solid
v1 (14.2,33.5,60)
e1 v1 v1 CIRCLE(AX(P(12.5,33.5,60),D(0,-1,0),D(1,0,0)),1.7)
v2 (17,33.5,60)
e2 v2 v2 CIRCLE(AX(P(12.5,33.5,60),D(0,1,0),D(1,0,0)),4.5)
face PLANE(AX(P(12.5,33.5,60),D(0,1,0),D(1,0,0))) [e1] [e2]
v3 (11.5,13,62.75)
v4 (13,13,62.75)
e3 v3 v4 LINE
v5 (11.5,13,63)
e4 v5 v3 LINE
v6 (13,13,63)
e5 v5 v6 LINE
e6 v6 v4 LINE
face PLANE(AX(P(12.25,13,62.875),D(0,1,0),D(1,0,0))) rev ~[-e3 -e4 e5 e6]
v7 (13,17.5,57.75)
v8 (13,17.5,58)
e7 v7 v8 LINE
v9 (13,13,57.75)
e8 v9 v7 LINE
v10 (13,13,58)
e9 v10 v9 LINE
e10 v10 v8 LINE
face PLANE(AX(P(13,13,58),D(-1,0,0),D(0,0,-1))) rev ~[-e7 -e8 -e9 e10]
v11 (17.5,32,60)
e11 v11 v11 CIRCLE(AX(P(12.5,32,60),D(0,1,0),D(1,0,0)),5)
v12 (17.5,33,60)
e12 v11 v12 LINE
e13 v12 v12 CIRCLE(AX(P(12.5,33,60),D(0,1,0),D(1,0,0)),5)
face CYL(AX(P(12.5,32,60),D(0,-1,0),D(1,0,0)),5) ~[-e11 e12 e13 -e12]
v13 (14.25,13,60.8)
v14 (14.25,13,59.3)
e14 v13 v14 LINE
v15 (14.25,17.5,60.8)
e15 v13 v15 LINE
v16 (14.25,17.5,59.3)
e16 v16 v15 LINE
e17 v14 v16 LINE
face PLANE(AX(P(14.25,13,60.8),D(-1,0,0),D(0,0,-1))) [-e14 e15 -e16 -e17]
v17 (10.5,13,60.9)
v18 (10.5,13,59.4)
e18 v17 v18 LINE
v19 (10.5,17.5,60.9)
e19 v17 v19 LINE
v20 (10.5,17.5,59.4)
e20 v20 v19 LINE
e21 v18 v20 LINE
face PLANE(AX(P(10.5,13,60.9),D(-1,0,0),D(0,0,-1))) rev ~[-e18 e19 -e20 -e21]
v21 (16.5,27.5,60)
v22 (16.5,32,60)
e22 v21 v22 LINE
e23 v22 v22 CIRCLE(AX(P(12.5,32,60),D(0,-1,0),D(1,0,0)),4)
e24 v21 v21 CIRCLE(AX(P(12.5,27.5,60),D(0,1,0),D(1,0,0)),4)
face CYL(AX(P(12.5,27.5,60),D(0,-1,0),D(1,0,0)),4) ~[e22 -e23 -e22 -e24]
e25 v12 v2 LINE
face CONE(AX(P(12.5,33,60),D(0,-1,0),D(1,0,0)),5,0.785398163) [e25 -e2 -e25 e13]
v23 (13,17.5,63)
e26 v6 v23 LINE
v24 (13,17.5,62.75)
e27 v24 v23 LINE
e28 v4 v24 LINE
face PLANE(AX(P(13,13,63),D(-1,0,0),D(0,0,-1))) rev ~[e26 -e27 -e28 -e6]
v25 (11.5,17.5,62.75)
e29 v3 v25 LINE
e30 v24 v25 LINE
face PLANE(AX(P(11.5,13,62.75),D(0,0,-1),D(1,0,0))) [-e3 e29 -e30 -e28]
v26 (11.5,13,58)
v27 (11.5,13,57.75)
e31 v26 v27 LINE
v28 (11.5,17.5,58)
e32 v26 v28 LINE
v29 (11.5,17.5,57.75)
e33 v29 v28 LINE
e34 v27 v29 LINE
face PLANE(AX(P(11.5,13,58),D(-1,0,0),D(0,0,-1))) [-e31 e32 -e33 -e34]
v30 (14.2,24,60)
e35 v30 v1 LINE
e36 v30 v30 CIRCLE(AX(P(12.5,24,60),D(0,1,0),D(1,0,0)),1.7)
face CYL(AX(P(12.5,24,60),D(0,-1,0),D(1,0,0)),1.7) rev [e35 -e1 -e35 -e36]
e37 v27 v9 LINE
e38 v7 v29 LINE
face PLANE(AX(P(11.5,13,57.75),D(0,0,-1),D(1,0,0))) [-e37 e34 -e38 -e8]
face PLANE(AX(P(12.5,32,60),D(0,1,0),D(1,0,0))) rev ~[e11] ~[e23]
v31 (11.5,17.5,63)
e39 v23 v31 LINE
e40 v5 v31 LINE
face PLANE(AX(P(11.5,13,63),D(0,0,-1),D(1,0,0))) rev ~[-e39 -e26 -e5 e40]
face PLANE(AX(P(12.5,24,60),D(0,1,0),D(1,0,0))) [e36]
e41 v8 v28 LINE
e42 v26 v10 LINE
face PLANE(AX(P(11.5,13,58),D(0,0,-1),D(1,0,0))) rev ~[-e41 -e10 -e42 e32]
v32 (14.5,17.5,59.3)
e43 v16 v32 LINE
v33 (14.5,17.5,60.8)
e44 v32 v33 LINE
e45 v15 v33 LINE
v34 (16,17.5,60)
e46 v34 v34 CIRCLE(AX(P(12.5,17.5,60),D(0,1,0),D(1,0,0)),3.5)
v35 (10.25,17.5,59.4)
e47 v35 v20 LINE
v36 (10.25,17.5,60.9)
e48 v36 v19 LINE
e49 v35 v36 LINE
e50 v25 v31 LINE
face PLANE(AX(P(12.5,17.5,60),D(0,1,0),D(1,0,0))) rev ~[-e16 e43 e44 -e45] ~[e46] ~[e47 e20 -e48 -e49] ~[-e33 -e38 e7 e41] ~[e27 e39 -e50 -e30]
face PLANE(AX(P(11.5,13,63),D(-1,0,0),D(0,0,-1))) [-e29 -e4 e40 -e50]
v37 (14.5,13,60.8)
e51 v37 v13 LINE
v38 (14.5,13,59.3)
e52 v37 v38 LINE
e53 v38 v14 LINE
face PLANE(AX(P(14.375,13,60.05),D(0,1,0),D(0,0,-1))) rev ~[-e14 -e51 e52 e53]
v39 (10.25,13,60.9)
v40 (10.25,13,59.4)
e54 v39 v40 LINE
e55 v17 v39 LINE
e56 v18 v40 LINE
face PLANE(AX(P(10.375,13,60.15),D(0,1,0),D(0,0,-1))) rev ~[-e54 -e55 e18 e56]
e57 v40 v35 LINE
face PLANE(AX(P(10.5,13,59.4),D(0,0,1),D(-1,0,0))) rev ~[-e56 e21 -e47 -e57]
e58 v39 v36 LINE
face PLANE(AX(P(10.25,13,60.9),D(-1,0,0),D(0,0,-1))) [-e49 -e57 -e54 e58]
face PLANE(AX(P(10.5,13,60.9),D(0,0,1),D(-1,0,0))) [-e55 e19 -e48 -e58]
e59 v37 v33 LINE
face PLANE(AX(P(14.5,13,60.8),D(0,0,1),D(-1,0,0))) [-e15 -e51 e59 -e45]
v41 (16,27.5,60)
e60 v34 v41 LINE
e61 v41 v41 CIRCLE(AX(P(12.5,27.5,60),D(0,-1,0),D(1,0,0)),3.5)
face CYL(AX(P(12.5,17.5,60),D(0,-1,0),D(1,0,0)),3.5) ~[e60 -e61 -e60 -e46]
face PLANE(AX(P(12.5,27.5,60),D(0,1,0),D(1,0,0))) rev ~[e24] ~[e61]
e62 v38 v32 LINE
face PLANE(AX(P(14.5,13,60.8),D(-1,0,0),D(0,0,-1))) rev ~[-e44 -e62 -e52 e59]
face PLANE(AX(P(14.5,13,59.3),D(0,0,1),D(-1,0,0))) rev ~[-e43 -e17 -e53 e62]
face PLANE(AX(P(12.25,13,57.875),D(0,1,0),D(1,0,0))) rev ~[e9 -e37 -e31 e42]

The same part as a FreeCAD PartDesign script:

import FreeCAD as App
import Part
import Sketcher
from FreeCAD import Vector
Q = App.Units.Quantity


def edges_at(feature, points):
    """Names of the edges that pass closest to the given points."""
    edges = feature.Shape.Edges
    near = lambda p: min(range(len(edges)), key=lambda i: edges[i].distToShape(Part.Vertex(*p))[0])
    return sorted({f"Edge{near(p) + 1}" for p in points})

doc = App.newDocument("Part")
params = doc.addObject("Spreadsheet::Sheet", "Params")
for row, (alias, value) in enumerate([
    ("sketch1_diameter", "3.4 mm"),
    ("pad1_length", "10 mm"),
    ("sketch2_diameter", "7 mm"),
    ("pad2_length", "16 mm"),
    ("sketch3_width", "1.5 mm"),
    ("sketch3_height", "0.25 mm"),
    ("pad3_length", "4.6 mm"),
    ("sketch4_width", "1.5 mm"),
    ("sketch4_height", "0.25 mm"),
    ("pad4_length", "4.6 mm"),
    ("sketch5_width", "1.5 mm"),
    ("sketch5_height", "0.25 mm"),
    ("pad5_length", "4.6 mm"),
    ("sketch6_width", "1.5 mm"),
    ("sketch6_height", "0.25 mm"),
    ("pad6_length", "4.6 mm"),
    ("sketch7_diameter", "10 mm"),
    ("pad7_length", "1.5 mm"),
    ("chamfer_size", "0.5 mm"),
    ("sketch8_diameter", "8 mm"),
    ("pad8_length", "4.6 mm"),
], start=1):
    params.set(f"A{row}", alias)
    params.set(f"B{row}", "=" + value)
    params.setAlias(f"B{row}", alias)

body = doc.addObject("PartDesign::Body", "Body")

# Sketch on XY plane
sketch1 = body.newObject("Sketcher::SketchObject", "Sketch")
sketch1.AttachmentSupport = (doc.getObject("XY_Plane"), [""])
sketch1.MapMode = "FlatFace"
sketch1.AttachmentOffset = App.Placement(Vector(0, 0, -8), App.Rotation())
sketch1.addGeometry(Part.Circle(Vector(0, 0, 0), Vector(0, 0, 1), 1.7), False)
sketch1.addConstraint(Sketcher.Constraint("Coincident", 0, 3, -1, 1))
sketch1.addConstraint(Sketcher.Constraint("Diameter", 0, Q("3.4 mm")))
sketch1.setExpression("Constraints[1]", "Params.sketch1_diameter")
pad1 = body.newObject("PartDesign::Pad", "Pad")
pad1.Profile = sketch1
pad1.setExpression("Length", "Params.pad1_length")
body2 = doc.addObject("PartDesign::Body", "Body001")

# Sketch on XY plane
sketch2 = body2.newObject("Sketcher::SketchObject", "Sketch001")
sketch2.AttachmentSupport = (doc.getObject("XY_Plane001"), [""])
sketch2.MapMode = "FlatFace"
sketch2.AttachmentOffset = App.Placement(Vector(0, 0, -14.5), App.Rotation())
sketch2.addGeometry(Part.Circle(Vector(0, 0, 0), Vector(0, 0, 1), 3.5), False)
sketch2.addConstraint(Sketcher.Constraint("Coincident", 0, 3, -1, 1))
sketch2.addConstraint(Sketcher.Constraint("Diameter", 0, Q("7 mm")))
sketch2.setExpression("Constraints[1]", "Params.sketch2_diameter")
pad2 = body2.newObject("PartDesign::Pad", "Pad001")
pad2.Profile = sketch2
pad2.setExpression("Length", "Params.pad2_length")
body3 = doc.addObject("PartDesign::Body", "Body002")

# Sketch on XY plane
sketch3 = body3.newObject("Sketcher::SketchObject", "Sketch002")
sketch3.AttachmentSupport = (doc.getObject("XY_Plane002"), [""])
sketch3.MapMode = "FlatFace"
sketch3.AttachmentOffset = App.Placement(Vector(0, 0, -19), App.Rotation())
sketch3.addGeometry(Part.LineSegment(Vector(-1, -2.75, 0), Vector(-1, -3, 0)), False)
sketch3.addGeometry(Part.LineSegment(Vector(-1, -3, 0), Vector(0.5, -3, 0)), False)
sketch3.addGeometry(Part.LineSegment(Vector(0.5, -3, 0), Vector(0.5, -2.75, 0)), False)
sketch3.addGeometry(Part.LineSegment(Vector(0.5, -2.75, 0), Vector(-1, -2.75, 0)), False)
sketch3.addConstraint(Sketcher.Constraint("Coincident", 0, 2, 1, 1))
sketch3.addConstraint(Sketcher.Constraint("Coincident", 1, 2, 2, 1))
sketch3.addConstraint(Sketcher.Constraint("Coincident", 2, 2, 3, 1))
sketch3.addConstraint(Sketcher.Constraint("Coincident", 3, 2, 0, 1))
sketch3.addConstraint(Sketcher.Constraint("Vertical", 0))
sketch3.addConstraint(Sketcher.Constraint("Horizontal", 1))
sketch3.addConstraint(Sketcher.Constraint("Vertical", 2))
sketch3.addConstraint(Sketcher.Constraint("Horizontal", 3))
sketch3.addConstraint(Sketcher.Constraint("DistanceX", 1, 1, 1, 2, Q("1.5 mm")))
sketch3.addConstraint(Sketcher.Constraint("DistanceX", 0, 2, -1, 1, Q("1 mm")))
sketch3.addConstraint(Sketcher.Constraint("DistanceY", 0, 2, -1, 1, Q("3 mm")))
sketch3.addConstraint(Sketcher.Constraint("DistanceY", 0, 2, 0, 1, Q("0.25 mm")))
sketch3.setExpression("Constraints[8]", "Params.sketch3_width")
sketch3.setExpression("Constraints[11]", "Params.sketch3_height")
pad3 = body3.newObject("PartDesign::Pad", "Pad002")
pad3.Profile = sketch3
pad3.setExpression("Length", "Params.pad3_length")
body4 = doc.addObject("PartDesign::Body", "Body003")

# Sketch on XY plane
sketch4 = body4.newObject("Sketcher::SketchObject", "Sketch003")
sketch4.AttachmentSupport = (doc.getObject("XY_Plane003"), [""])
sketch4.MapMode = "FlatFace"
sketch4.AttachmentOffset = App.Placement(Vector(0, 0, -19), App.Rotation())
sketch4.addGeometry(Part.LineSegment(Vector(-1, 2.25, 0), Vector(-1, 2, 0)), False)
sketch4.addGeometry(Part.LineSegment(Vector(-1, 2, 0), Vector(0.5, 2, 0)), False)
sketch4.addGeometry(Part.LineSegment(Vector(0.5, 2, 0), Vector(0.5, 2.25, 0)), False)
sketch4.addGeometry(Part.LineSegment(Vector(0.5, 2.25, 0), Vector(-1, 2.25, 0)), False)
sketch4.addConstraint(Sketcher.Constraint("Coincident", 0, 2, 1, 1))
sketch4.addConstraint(Sketcher.Constraint("Coincident", 1, 2, 2, 1))
sketch4.addConstraint(Sketcher.Constraint("Coincident", 2, 2, 3, 1))
sketch4.addConstraint(Sketcher.Constraint("Coincident", 3, 2, 0, 1))
sketch4.addConstraint(Sketcher.Constraint("Vertical", 0))
sketch4.addConstraint(Sketcher.Constraint("Horizontal", 1))
sketch4.addConstraint(Sketcher.Constraint("Vertical", 2))
sketch4.addConstraint(Sketcher.Constraint("Horizontal", 3))
sketch4.addConstraint(Sketcher.Constraint("DistanceX", 1, 1, 1, 2, Q("1.5 mm")))
sketch4.addConstraint(Sketcher.Constraint("DistanceX", 0, 2, -1, 1, Q("1 mm")))
sketch4.addConstraint(Sketcher.Constraint("DistanceY", -1, 1, 0, 2, Q("2 mm")))
sketch4.addConstraint(Sketcher.Constraint("DistanceY", 0, 2, 0, 1, Q("0.25 mm")))
sketch4.setExpression("Constraints[8]", "Params.sketch4_width")
sketch4.setExpression("Constraints[11]", "Params.sketch4_height")
pad4 = body4.newObject("PartDesign::Pad", "Pad003")
pad4.Profile = sketch4
pad4.setExpression("Length", "Params.pad4_length")
body5 = doc.addObject("PartDesign::Body", "Body004")

# Sketch on XY plane
sketch5 = body5.newObject("Sketcher::SketchObject", "Sketch004")
sketch5.AttachmentSupport = (doc.getObject("XY_Plane004"), [""])
sketch5.MapMode = "FlatFace"
sketch5.addGeometry(Part.LineSegment(Vector(0, 0.25, 0), Vector(0, 0, 0)), False)
sketch5.addGeometry(Part.LineSegment(Vector(0, 0, 0), Vector(1.5, 0, 0)), False)
sketch5.addGeometry(Part.LineSegment(Vector(1.5, 0, 0), Vector(1.5, 0.25, 0)), False)
sketch5.addGeometry(Part.LineSegment(Vector(1.5, 0.25, 0), Vector(0, 0.25, 0)), False)
sketch5.addConstraint(Sketcher.Constraint("Coincident", 0, 2, 1, 1))
sketch5.addConstraint(Sketcher.Constraint("Coincident", 1, 2, 2, 1))
sketch5.addConstraint(Sketcher.Constraint("Coincident", 2, 2, 3, 1))
sketch5.addConstraint(Sketcher.Constraint("Coincident", 3, 2, 0, 1))
sketch5.addConstraint(Sketcher.Constraint("Vertical", 0))
sketch5.addConstraint(Sketcher.Constraint("Horizontal", 1))
sketch5.addConstraint(Sketcher.Constraint("Vertical", 2))
sketch5.addConstraint(Sketcher.Constraint("Horizontal", 3))
sketch5.addConstraint(Sketcher.Constraint("Coincident", 0, 2, -1, 1))
sketch5.addConstraint(Sketcher.Constraint("DistanceX", 1, 1, 1, 2, Q("1.5 mm")))
sketch5.addConstraint(Sketcher.Constraint("DistanceY", 0, 2, 0, 1, Q("0.25 mm")))
sketch5.setExpression("Constraints[9]", "Params.sketch5_width")
sketch5.setExpression("Constraints[10]", "Params.sketch5_height")
pad5 = body5.newObject("PartDesign::Pad", "Pad004")
pad5.Profile = sketch5
pad5.setExpression("Length", "Params.pad5_length")
body6 = doc.addObject("PartDesign::Body", "Body005")
doc.recompute()

body5.Placement = App.Placement(Vector(2, -0.8, -19), App.Rotation(Vector(0, 0, 1), 90))
boolean = body6.newObject("PartDesign::Boolean", "Boolean")
boolean.Type = "Fuse"
boolean.addObjects([body5])
body7 = doc.addObject("PartDesign::Body", "Body006")

# Sketch on XY plane
sketch6 = body7.newObject("Sketcher::SketchObject", "Sketch005")
sketch6.AttachmentSupport = (doc.getObject("XY_Plane006"), [""])
sketch6.MapMode = "FlatFace"
sketch6.addGeometry(Part.LineSegment(Vector(0, 0.25, 0), Vector(0, 0, 0)), False)
sketch6.addGeometry(Part.LineSegment(Vector(0, 0, 0), Vector(1.5, 0, 0)), False)
sketch6.addGeometry(Part.LineSegment(Vector(1.5, 0, 0), Vector(1.5, 0.25, 0)), False)
sketch6.addGeometry(Part.LineSegment(Vector(1.5, 0.25, 0), Vector(0, 0.25, 0)), False)
sketch6.addConstraint(Sketcher.Constraint("Coincident", 0, 2, 1, 1))
sketch6.addConstraint(Sketcher.Constraint("Coincident", 1, 2, 2, 1))
sketch6.addConstraint(Sketcher.Constraint("Coincident", 2, 2, 3, 1))
sketch6.addConstraint(Sketcher.Constraint("Coincident", 3, 2, 0, 1))
sketch6.addConstraint(Sketcher.Constraint("Vertical", 0))
sketch6.addConstraint(Sketcher.Constraint("Horizontal", 1))
sketch6.addConstraint(Sketcher.Constraint("Vertical", 2))
sketch6.addConstraint(Sketcher.Constraint("Horizontal", 3))
sketch6.addConstraint(Sketcher.Constraint("Coincident", 0, 2, -1, 1))
sketch6.addConstraint(Sketcher.Constraint("DistanceX", 1, 1, 1, 2, Q("1.5 mm")))
sketch6.addConstraint(Sketcher.Constraint("DistanceY", 0, 2, 0, 1, Q("0.25 mm")))
sketch6.setExpression("Constraints[9]", "Params.sketch6_width")
sketch6.setExpression("Constraints[10]", "Params.sketch6_height")
pad6 = body7.newObject("PartDesign::Pad", "Pad005")
pad6.Profile = sketch6
pad6.setExpression("Length", "Params.pad6_length")
body8 = doc.addObject("PartDesign::Body", "Body007")
doc.recompute()

body7.Placement = App.Placement(Vector(-2, -0.9, -19), App.Rotation(Vector(0, 0, 1), 90))
boolean2 = body8.newObject("PartDesign::Boolean", "Boolean001")
boolean2.Type = "Fuse"
boolean2.addObjects([body7])
body9 = doc.addObject("PartDesign::Body", "Body008")

# Sketch on XY plane
sketch7 = body9.newObject("Sketcher::SketchObject", "Sketch006")
sketch7.AttachmentSupport = (doc.getObject("XY_Plane008"), [""])
sketch7.MapMode = "FlatFace"
sketch7.addGeometry(Part.Circle(Vector(0, 0, 0), Vector(0, 0, 1), 5), False)
sketch7.addConstraint(Sketcher.Constraint("Coincident", 0, 3, -1, 1))
sketch7.addConstraint(Sketcher.Constraint("Diameter", 0, Q("10 mm")))
sketch7.setExpression("Constraints[1]", "Params.sketch7_diameter")
pad7 = body9.newObject("PartDesign::Pad", "Pad006")
pad7.Profile = sketch7
pad7.setExpression("Length", "Params.pad7_length")
doc.recompute()

chamfer = body9.newObject("PartDesign::Chamfer", "Chamfer")
chamfer.Base = (pad7, edges_at(pad7, [(-5, 0, 1.5)]))
chamfer.setExpression("Size", "Params.chamfer_size")
body10 = doc.addObject("PartDesign::Body", "Body009")

# Sketch on XY plane
sketch8 = body10.newObject("Sketcher::SketchObject", "Sketch007")
sketch8.AttachmentSupport = (doc.getObject("XY_Plane009"), [""])
sketch8.MapMode = "FlatFace"
sketch8.AttachmentOffset = App.Placement(Vector(0, 0, -4.5), App.Rotation())
sketch8.addGeometry(Part.Circle(Vector(0, 0, 0), Vector(0, 0, 1), 4), False)
sketch8.addConstraint(Sketcher.Constraint("Coincident", 0, 3, -1, 1))
sketch8.addConstraint(Sketcher.Constraint("Diameter", 0, Q("8 mm")))
sketch8.setExpression("Constraints[1]", "Params.sketch8_diameter")
pad8 = body10.newObject("PartDesign::Pad", "Pad007")
pad8.Profile = sketch8
pad8.setExpression("Length", "Params.pad8_length")
doc.recompute()

boolean3 = body10.newObject("PartDesign::Boolean", "Boolean002")
boolean3.Type = "Fuse"
boolean3.addObjects([body2])
doc.recompute()

boolean4 = body10.newObject("PartDesign::Boolean", "Boolean003")
boolean4.Type = "Fuse"
boolean4.addObjects([body3])
doc.recompute()

boolean5 = body10.newObject("PartDesign::Boolean", "Boolean004")
boolean5.Type = "Fuse"
boolean5.addObjects([body4])
doc.recompute()

boolean6 = body10.newObject("PartDesign::Boolean", "Boolean005")
boolean6.Type = "Fuse"
boolean6.addObjects([body6])
doc.recompute()

boolean7 = body10.newObject("PartDesign::Boolean", "Boolean006")
boolean7.Type = "Fuse"
boolean7.addObjects([body8])
doc.recompute()

boolean8 = body10.newObject("PartDesign::Boolean", "Boolean007")
boolean8.Type = "Fuse"
boolean8.addObjects([body9])
doc.recompute()

boolean9 = body10.newObject("PartDesign::Boolean", "Boolean008")
boolean9.Type = "Cut"
boolean9.addObjects([body])
body11 = doc.addObject("PartDesign::Body", "Body010")
doc.recompute()

body10.Placement = App.Placement(Vector(0, 0, 0), App.Rotation(Vector(1, 0, 0), 270))
boolean10 = body11.newObject("PartDesign::Boolean", "Boolean009")
boolean10.Type = "Fuse"
boolean10.addObjects([body10])
body12 = doc.addObject("PartDesign::Body", "Body011")
doc.recompute()

body11.Placement = App.Placement(Vector(12.5, 32, 60), App.Rotation(Vector(0, 0, 1), 0))
boolean11 = body12.newObject("PartDesign::Boolean", "Boolean010")
boolean11.Type = "Fuse"
boolean11.addObjects([body11])

doc.recompute()
